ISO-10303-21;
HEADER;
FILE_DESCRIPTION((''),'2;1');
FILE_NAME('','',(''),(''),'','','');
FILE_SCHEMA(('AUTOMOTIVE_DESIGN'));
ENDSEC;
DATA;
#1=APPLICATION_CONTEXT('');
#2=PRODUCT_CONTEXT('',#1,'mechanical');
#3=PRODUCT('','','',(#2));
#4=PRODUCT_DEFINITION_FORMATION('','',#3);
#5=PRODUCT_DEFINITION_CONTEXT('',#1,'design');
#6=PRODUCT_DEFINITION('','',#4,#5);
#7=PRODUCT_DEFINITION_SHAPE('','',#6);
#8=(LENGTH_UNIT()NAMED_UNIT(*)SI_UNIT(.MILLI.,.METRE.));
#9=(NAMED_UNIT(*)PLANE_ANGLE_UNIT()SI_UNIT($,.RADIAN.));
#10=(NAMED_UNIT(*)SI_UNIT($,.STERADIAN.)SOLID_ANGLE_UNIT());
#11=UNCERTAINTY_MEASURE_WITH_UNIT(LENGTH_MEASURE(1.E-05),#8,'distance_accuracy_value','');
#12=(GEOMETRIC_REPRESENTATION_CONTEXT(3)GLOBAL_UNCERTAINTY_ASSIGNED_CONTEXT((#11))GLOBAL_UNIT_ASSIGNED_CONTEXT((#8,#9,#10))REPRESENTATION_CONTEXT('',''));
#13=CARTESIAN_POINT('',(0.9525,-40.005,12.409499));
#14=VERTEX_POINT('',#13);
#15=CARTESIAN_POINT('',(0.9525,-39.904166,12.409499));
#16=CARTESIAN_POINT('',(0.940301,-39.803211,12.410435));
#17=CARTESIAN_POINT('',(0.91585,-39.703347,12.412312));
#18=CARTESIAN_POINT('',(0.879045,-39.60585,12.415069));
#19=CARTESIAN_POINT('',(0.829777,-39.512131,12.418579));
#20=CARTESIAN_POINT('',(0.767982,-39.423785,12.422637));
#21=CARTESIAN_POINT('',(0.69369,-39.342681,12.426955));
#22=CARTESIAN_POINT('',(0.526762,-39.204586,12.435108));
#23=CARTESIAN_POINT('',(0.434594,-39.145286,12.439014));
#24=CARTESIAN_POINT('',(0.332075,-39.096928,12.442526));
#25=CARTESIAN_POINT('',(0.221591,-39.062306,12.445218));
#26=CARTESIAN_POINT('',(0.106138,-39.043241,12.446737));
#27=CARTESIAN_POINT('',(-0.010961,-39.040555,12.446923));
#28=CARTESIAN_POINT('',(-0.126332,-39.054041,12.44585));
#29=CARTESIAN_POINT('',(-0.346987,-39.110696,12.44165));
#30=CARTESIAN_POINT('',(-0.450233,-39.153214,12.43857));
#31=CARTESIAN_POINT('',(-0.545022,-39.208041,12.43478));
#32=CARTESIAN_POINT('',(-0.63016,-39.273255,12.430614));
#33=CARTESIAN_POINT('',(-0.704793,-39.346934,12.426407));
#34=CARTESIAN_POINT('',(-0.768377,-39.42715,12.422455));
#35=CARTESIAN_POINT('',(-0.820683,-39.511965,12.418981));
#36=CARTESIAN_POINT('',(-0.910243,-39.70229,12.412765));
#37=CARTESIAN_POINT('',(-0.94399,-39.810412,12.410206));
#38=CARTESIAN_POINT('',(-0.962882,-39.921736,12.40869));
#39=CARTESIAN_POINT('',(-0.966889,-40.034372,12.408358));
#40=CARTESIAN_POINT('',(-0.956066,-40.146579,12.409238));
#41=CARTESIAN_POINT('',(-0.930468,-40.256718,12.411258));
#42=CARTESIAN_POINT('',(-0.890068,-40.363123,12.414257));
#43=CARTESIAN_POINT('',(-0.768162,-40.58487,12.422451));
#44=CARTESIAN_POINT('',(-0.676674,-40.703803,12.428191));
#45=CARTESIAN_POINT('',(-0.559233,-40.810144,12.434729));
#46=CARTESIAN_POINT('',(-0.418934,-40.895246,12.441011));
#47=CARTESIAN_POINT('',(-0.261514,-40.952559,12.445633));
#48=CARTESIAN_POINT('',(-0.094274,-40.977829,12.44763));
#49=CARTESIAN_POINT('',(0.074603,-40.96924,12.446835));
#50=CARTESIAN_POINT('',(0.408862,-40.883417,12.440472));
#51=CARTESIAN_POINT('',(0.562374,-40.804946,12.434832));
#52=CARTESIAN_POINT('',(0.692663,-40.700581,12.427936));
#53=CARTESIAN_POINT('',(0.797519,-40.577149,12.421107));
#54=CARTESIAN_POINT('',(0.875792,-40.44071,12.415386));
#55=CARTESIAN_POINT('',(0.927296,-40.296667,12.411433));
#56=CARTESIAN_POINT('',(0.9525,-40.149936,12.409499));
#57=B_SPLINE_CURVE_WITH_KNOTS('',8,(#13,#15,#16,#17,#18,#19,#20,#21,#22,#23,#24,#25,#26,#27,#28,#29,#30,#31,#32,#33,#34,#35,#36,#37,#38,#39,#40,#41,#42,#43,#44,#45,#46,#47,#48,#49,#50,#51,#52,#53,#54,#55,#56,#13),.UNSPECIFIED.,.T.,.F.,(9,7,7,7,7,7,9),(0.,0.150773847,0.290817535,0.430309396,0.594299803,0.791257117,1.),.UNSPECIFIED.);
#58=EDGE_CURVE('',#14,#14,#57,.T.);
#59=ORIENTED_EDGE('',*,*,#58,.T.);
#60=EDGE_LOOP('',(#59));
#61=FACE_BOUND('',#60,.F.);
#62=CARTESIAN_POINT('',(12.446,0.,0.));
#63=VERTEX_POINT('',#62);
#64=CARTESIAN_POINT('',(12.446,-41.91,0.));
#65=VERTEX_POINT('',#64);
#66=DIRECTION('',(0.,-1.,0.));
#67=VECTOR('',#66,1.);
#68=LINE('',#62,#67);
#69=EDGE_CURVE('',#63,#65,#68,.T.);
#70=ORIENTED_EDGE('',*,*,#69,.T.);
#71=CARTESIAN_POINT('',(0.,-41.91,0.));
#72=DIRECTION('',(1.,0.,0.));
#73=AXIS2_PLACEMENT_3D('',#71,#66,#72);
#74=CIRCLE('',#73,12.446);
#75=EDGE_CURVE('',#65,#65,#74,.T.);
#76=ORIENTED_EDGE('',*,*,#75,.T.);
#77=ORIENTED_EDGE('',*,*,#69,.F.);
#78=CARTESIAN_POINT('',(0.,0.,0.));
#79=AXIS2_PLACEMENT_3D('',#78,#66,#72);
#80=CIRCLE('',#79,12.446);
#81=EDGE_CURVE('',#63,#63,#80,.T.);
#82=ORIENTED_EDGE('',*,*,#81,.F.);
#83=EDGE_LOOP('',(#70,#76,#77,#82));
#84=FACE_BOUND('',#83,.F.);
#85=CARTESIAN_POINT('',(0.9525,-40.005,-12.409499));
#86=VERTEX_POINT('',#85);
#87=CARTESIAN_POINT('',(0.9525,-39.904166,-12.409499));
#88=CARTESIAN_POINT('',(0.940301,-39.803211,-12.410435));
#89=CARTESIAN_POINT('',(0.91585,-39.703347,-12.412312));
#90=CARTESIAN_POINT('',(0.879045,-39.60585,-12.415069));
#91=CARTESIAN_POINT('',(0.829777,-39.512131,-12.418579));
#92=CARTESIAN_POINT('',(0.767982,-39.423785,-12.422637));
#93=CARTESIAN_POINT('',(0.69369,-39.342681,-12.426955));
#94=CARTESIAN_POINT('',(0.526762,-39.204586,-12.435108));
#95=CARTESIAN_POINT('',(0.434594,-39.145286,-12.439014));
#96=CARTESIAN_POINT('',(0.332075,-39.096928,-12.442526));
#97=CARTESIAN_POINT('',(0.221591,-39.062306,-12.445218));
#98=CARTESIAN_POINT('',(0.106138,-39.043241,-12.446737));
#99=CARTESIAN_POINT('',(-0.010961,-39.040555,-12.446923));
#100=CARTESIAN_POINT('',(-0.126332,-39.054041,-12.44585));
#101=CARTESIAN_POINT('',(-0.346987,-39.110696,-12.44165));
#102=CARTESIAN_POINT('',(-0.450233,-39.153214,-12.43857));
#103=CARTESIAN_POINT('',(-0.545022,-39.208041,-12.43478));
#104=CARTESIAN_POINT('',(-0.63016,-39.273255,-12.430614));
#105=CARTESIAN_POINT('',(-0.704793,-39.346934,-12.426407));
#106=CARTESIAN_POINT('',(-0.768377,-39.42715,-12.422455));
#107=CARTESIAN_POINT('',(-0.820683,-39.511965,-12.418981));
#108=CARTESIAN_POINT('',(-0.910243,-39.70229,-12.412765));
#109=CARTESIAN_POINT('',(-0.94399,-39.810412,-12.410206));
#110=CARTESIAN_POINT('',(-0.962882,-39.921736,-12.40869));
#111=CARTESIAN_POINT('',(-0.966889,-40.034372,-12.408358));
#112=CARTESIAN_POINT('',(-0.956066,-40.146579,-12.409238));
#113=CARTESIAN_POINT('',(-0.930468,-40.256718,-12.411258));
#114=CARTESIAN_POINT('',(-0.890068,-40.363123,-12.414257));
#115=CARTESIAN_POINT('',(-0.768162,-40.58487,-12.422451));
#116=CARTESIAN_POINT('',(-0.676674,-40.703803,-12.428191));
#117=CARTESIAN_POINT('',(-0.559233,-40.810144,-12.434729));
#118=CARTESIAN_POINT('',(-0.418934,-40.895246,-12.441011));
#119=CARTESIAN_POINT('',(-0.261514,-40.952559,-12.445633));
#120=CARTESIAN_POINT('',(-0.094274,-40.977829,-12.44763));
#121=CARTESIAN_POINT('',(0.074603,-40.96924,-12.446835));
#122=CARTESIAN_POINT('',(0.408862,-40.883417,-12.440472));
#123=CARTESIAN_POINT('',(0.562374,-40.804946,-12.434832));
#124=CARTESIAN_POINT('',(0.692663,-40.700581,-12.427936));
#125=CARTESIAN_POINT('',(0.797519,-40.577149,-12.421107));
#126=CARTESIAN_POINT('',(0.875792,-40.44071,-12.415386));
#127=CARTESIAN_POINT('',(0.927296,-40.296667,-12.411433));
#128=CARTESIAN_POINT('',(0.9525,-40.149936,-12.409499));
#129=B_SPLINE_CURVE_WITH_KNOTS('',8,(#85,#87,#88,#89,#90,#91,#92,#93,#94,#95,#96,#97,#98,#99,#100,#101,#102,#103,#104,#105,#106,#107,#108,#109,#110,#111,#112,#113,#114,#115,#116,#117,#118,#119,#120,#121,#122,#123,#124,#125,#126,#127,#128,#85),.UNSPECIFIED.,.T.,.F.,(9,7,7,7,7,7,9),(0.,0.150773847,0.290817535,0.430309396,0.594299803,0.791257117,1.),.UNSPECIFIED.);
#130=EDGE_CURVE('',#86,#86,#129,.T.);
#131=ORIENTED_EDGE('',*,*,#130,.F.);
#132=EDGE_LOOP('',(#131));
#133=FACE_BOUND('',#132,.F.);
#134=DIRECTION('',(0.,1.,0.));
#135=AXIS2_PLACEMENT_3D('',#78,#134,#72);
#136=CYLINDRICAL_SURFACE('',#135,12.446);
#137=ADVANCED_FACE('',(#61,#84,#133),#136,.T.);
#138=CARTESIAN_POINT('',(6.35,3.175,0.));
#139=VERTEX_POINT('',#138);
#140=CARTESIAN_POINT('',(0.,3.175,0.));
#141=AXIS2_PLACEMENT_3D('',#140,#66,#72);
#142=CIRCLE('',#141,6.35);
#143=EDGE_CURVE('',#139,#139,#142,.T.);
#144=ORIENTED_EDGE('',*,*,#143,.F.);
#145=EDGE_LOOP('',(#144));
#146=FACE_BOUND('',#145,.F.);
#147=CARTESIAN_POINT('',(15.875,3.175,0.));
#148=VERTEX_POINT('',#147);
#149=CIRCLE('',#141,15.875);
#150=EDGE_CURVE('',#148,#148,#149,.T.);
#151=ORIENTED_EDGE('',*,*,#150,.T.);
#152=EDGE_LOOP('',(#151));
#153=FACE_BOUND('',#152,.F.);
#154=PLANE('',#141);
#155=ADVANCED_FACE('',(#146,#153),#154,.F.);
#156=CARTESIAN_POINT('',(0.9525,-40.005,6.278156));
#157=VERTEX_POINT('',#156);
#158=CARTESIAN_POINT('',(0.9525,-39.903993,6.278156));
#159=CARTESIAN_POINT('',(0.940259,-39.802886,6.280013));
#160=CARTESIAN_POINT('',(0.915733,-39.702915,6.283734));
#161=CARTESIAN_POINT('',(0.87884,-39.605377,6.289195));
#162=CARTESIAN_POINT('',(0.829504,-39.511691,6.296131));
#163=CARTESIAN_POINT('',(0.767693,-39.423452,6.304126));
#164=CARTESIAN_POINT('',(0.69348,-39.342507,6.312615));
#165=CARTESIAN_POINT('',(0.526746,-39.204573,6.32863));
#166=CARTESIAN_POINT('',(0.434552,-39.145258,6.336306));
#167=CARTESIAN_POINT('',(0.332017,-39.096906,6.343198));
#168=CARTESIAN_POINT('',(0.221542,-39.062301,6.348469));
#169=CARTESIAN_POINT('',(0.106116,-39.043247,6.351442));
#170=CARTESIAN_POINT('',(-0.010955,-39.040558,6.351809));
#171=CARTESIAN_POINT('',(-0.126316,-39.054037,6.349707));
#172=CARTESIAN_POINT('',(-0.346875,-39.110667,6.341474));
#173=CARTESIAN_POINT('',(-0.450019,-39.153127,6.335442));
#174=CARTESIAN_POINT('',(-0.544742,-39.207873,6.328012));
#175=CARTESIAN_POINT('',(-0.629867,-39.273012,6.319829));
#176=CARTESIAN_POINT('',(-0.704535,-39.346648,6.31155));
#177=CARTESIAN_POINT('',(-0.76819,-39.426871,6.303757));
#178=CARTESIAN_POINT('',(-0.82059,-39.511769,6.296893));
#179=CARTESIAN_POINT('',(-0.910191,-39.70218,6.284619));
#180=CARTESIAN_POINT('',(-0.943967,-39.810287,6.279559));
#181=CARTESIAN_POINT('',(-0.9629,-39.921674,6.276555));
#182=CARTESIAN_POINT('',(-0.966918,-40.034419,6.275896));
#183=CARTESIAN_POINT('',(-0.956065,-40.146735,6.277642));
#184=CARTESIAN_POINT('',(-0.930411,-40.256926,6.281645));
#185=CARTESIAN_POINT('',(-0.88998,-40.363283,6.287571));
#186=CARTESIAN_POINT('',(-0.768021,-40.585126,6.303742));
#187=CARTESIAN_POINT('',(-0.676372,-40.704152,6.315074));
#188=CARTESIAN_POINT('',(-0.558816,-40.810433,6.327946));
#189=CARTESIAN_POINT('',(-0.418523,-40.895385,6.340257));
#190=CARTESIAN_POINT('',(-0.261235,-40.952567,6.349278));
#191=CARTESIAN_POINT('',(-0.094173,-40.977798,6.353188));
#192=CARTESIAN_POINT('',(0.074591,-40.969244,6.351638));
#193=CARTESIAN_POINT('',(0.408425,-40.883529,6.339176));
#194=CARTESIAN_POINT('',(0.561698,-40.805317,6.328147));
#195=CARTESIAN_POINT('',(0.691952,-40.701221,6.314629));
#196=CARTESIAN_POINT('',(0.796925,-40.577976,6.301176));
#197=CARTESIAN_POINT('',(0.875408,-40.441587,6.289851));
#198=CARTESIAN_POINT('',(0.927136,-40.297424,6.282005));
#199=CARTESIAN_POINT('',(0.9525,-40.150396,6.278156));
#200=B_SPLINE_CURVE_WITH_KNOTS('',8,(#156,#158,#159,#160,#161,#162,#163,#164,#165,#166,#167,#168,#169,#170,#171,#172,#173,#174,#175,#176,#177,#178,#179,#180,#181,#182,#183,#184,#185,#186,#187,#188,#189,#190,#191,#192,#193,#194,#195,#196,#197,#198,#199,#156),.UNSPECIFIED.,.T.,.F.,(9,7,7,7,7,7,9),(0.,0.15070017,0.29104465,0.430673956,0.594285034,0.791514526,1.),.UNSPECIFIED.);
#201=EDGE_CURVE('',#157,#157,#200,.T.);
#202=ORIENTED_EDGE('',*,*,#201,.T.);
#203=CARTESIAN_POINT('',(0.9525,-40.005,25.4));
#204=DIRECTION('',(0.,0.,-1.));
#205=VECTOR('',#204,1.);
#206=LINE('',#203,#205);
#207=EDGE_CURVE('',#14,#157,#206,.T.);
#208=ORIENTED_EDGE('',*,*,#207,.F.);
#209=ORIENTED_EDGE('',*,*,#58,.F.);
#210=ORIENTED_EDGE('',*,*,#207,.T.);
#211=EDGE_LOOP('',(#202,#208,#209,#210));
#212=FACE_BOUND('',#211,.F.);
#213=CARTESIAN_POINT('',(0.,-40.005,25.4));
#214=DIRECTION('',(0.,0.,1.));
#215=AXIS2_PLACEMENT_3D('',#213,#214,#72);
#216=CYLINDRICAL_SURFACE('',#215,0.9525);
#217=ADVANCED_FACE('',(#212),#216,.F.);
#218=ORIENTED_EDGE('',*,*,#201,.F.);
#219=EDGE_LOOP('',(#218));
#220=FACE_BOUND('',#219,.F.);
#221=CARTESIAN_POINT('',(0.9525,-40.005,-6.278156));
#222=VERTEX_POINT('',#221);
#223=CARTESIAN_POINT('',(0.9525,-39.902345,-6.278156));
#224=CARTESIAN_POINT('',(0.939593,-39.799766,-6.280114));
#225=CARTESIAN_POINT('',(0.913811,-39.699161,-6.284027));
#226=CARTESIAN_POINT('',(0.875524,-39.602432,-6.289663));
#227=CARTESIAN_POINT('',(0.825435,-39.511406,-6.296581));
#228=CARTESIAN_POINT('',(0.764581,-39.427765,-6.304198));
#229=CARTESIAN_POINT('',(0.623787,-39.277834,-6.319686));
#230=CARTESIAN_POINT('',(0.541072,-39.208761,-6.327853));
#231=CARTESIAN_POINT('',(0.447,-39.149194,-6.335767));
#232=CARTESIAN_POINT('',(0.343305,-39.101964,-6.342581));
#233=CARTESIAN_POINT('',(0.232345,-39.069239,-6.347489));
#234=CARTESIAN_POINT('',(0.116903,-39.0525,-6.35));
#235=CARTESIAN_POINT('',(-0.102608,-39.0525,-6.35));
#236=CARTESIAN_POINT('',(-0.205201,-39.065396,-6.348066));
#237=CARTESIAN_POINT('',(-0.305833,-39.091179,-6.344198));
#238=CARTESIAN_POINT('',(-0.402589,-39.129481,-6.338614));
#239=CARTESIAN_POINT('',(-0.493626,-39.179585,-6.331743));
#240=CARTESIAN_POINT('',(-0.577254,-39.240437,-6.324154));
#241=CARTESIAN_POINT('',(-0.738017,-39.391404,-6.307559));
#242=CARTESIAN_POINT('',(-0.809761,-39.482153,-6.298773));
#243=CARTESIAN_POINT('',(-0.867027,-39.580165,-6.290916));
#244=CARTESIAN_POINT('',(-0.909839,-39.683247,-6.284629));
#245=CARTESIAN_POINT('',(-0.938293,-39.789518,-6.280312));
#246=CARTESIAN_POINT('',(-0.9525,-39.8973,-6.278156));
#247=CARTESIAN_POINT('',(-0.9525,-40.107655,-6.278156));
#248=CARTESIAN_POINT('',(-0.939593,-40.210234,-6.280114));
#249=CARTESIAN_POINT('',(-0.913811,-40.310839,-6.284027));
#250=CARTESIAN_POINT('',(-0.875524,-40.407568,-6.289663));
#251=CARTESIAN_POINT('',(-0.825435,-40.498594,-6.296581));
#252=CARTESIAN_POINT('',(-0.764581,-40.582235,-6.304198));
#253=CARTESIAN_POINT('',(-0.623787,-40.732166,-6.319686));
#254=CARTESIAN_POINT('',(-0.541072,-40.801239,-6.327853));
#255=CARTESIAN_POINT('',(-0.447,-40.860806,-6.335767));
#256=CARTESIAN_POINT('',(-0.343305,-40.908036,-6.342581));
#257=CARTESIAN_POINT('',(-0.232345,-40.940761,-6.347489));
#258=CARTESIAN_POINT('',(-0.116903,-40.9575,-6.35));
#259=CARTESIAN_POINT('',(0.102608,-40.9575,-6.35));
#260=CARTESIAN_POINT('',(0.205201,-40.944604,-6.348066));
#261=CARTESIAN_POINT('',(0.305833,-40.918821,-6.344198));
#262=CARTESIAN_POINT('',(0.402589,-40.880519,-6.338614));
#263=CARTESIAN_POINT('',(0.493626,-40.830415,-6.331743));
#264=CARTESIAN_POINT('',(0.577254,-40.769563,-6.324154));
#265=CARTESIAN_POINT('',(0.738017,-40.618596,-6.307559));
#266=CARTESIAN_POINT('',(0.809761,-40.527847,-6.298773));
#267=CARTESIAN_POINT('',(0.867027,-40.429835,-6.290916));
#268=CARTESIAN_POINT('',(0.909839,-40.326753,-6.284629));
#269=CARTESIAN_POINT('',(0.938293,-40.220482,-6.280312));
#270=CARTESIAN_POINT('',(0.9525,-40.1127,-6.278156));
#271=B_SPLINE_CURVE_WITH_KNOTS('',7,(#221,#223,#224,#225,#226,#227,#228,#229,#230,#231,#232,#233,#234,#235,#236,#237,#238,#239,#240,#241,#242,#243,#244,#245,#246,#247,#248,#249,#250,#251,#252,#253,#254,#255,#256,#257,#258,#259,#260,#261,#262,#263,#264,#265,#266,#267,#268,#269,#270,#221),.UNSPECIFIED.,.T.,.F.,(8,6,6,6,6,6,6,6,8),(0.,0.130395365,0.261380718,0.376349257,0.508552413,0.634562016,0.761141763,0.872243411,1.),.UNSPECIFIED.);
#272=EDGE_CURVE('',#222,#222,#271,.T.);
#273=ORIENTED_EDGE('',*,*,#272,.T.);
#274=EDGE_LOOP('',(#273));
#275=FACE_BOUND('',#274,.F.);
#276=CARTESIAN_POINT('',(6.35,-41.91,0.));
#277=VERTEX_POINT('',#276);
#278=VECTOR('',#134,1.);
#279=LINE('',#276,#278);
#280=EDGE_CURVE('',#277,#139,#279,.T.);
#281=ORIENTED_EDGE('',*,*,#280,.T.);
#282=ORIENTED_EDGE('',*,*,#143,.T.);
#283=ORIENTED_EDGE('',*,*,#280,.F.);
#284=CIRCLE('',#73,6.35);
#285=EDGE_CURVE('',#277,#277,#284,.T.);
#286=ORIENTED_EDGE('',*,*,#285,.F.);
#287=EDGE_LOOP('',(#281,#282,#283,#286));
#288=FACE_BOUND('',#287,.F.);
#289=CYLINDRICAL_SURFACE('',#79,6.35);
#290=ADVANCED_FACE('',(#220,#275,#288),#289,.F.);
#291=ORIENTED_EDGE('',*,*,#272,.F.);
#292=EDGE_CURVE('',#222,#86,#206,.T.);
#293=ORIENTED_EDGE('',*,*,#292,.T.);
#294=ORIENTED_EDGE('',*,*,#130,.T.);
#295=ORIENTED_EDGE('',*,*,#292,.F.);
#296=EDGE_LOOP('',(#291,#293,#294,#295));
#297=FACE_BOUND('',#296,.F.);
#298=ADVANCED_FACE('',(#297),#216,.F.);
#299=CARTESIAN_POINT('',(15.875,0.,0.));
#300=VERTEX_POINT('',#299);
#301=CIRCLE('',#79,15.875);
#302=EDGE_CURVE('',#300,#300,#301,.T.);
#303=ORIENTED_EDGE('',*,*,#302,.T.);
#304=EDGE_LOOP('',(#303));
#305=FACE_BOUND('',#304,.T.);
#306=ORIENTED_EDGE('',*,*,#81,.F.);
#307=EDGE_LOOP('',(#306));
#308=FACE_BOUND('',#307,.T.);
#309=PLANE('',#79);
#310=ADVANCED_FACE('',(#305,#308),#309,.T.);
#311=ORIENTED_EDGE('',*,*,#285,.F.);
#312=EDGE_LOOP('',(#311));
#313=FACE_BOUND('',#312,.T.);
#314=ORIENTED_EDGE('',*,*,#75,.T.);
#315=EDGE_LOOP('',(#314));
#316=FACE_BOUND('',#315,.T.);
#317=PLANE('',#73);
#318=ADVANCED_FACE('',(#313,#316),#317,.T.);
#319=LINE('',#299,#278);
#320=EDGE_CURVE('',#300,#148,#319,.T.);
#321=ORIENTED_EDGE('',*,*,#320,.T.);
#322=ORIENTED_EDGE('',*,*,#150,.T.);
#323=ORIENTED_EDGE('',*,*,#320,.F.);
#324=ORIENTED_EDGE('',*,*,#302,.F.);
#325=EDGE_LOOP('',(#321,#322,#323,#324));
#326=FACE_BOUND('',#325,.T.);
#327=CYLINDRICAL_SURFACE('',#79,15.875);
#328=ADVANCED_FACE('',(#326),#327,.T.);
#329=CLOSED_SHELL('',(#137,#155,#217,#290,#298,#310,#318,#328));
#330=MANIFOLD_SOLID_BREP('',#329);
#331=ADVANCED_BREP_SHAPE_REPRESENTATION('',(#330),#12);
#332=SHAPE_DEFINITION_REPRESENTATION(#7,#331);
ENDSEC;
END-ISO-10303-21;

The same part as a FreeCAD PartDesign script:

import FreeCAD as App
import Part
import Sketcher

V = App.Vector
Q = App.Units.Quantity

doc = App.newDocument("Part")
params = doc.addObject("Spreadsheet::Sheet", "Params")
for row, (alias, value) in enumerate([
    ("sketch1_diameter", "0.5 in"),
    ("sketch1_diameter2", "0.98 in"),
    ("pad1_length", "1.65 in"),
    ("sketch2_diameter", "0.5 in"),
    ("sketch2_diameter2", "1.25 in"),
    ("pad2_length", "0.125 in"),
    ("sketch3_diameter", "0.075 in"),
], start=1):
    params.set(f"A{row}", alias)
    params.set(f"B{row}", "=" + value)
    params.setAlias(f"B{row}", alias)

body = doc.addObject("PartDesign::Body", "Body")

# Sketch on XZ plane
sketch1 = body.newObject("Sketcher::SketchObject", "Sketch")
sketch1.AttachmentSupport = (doc.getObject("XZ_Plane"), [""])
sketch1.MapMode = "FlatFace"
sketch1.addGeometry([
    Part.Circle(V(0, 0, 0), V(0, 0, 1), 12.446),
    Part.Circle(V(0, 0, 0), V(0, 0, 1), 6.35),
], False)
sketch1.addConstraint([
    Sketcher.Constraint("Coincident", 0, 3, -1, 1),
    Sketcher.Constraint("Coincident", 1, 3, -1, 1),
    Sketcher.Constraint("Diameter", 1, Q("0.5 in")),
    Sketcher.Constraint("Diameter", 0, Q("0.98 in")),
])
sketch1.setExpression("Constraints[2]", "Params.sketch1_diameter")
sketch1.setExpression("Constraints[3]", "Params.sketch1_diameter2")
pad1 = body.newObject("PartDesign::Pad", "Pad")
pad1.Profile = sketch1
pad1.setExpression("Length", "Params.pad1_length")

# Sketch on XZ plane
sketch2 = body.newObject("Sketcher::SketchObject", "Sketch001")
sketch2.AttachmentSupport = (doc.getObject("XZ_Plane"), [""])
sketch2.MapMode = "FlatFace"
sketch2.addGeometry([
    Part.Circle(V(0, 0, 0), V(0, 0, 1), 15.875),
    Part.Circle(V(0, 0, 0), V(0, 0, 1), 6.35),
], False)
sketch2.addConstraint([
    Sketcher.Constraint("Coincident", 0, 3, -1, 1),
    Sketcher.Constraint("Coincident", 1, 3, -1, 1),
    Sketcher.Constraint("Diameter", 1, Q("0.5 in")),
    Sketcher.Constraint("Diameter", 0, Q("1.25 in")),
])
sketch2.setExpression("Constraints[2]", "Params.sketch2_diameter")
sketch2.setExpression("Constraints[3]", "Params.sketch2_diameter2")
pad2 = body.newObject("PartDesign::Pad", "Pad001")
pad2.Profile = sketch2
pad2.setExpression("Length", "Params.pad2_length")
pad2.Reversed = True

# Sketch on XY plane
sketch3 = body.newObject("Sketcher::SketchObject", "Sketch002")
sketch3.AttachmentSupport = (doc.getObject("XY_Plane"), [""])
sketch3.MapMode = "FlatFace"
sketch3.AttachmentOffset = App.Placement(V(0, 0, 1 * 25.4), App.Rotation())
sketch3.addGeometry(Part.Circle(V(0, -40.005, 0), V(0, 0, 1), 0.9525), False)
sketch3.addConstraint([
    Sketcher.Constraint("PointOnObject", 0, 3, -2),
    Sketcher.Constraint("Diameter", 0, Q("0.075 in")),
    Sketcher.Constraint("DistanceY", 0, 3, -1, 1, Q("1.575 in")),
])
sketch3.setExpression("Constraints[1]", "Params.sketch3_diameter")
pocket1 = body.newObject("PartDesign::Pocket", "Pocket")
pocket1.Profile = sketch3
pocket1.Type = "ThroughAll"

doc.recompute()
